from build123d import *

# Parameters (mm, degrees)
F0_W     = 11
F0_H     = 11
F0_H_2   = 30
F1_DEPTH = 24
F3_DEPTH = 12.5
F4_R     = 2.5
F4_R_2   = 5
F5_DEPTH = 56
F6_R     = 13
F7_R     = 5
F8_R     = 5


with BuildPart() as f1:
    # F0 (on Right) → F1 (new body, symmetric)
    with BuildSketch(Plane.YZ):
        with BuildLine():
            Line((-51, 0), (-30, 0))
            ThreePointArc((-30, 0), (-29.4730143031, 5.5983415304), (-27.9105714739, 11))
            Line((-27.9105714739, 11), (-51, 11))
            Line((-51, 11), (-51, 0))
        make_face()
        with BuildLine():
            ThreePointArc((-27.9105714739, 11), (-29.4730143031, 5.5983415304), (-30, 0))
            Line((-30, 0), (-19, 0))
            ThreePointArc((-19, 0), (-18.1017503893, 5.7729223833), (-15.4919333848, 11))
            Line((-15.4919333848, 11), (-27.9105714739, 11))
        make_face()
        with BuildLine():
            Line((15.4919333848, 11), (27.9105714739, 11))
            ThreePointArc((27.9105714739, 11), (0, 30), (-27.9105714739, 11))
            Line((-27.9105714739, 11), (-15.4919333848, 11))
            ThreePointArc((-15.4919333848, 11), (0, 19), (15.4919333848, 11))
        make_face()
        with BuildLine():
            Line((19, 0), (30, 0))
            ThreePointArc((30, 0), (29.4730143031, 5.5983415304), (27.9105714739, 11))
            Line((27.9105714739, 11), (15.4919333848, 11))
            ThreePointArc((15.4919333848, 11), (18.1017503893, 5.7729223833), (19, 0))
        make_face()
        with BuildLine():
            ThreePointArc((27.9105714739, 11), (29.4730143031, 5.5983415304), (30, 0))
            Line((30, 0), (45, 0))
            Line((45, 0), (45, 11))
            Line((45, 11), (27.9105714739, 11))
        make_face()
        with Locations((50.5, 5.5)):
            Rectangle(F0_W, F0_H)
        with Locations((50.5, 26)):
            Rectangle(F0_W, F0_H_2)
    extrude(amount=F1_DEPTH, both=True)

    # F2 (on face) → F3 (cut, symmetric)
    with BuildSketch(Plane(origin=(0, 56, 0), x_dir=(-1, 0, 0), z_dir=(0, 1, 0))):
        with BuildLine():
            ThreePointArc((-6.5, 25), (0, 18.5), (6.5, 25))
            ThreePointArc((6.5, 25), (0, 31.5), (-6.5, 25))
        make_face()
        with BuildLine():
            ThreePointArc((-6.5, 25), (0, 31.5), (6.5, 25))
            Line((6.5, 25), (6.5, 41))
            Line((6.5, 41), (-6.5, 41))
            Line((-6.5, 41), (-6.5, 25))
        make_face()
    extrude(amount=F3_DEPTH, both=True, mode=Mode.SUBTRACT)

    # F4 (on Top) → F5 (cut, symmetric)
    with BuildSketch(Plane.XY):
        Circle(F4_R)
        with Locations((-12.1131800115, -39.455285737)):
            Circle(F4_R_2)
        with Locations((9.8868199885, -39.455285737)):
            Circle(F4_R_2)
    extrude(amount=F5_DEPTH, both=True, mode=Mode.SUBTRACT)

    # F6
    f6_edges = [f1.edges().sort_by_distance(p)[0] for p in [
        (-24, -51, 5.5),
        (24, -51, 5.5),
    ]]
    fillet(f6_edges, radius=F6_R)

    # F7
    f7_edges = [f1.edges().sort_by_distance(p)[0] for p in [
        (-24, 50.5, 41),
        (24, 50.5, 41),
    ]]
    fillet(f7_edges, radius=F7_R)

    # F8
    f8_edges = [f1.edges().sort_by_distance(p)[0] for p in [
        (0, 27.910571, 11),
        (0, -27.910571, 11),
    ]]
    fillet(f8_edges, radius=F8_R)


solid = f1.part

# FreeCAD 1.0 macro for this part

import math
import FreeCAD as App
import Part
import Sketcher

V = App.Vector
Q = App.Units.Quantity


def edges_at(feature, points):
    """Names of the edges that pass closest to the given points."""
    edges = feature.Shape.Edges
    near = lambda p: min(range(len(edges)), key=lambda i: edges[i].distToShape(Part.Vertex(*p))[0])
    return sorted({f"Edge{near(p) + 1}" for p in points})

doc = App.newDocument("Part")
body = doc.addObject("PartDesign::Body", "Body")

# Sketch on YZ plane
sketch1 = body.newObject("Sketcher::SketchObject", "Sketch")
sketch1.AttachmentSupport = (doc.getObject("YZ_Plane"), [""])
sketch1.MapMode = "FlatFace"
sketch1.addGeometry(Part.LineSegment(V(-51, 0, 0), V(-19, 0, 0)), False)
sketch1.addGeometry(Part.ArcOfCircle(Part.Circle(V(0, 0, 0), V(0, 0, 1), 19), math.radians(145), math.radians(180)), False)
sketch1.addGeometry(Part.ArcOfCircle(Part.Circle(V(0, 0, 0), V(0, 0, 1), 19), math.radians(35), math.radians(145)), False)
sketch1.addGeometry(Part.ArcOfCircle(Part.Circle(V(0, 0, 0), V(0, 0, 1), 19), math.radians(0), math.radians(35)), False)
sketch1.addGeometry(Part.LineSegment(V(19, 0, 0), V(56, 0, 0)), False)
sketch1.addGeometry(Part.LineSegment(V(56, 0, 0), V(56, 41, 0)), False)
sketch1.addGeometry(Part.LineSegment(V(56, 41, 0), V(45, 41, 0)), False)
sketch1.addGeometry(Part.LineSegment(V(45, 41, 0), V(45, 11, 0)), False)
sketch1.addGeometry(Part.LineSegment(V(45, 11, 0), V(28, 11, 0)), False)
sketch1.addGeometry(Part.ArcOfCircle(Part.Circle(V(0, 0, 0), V(0, 0, 1), 30), math.radians(22), math.radians(158)), False)
sketch1.addGeometry(Part.LineSegment(V(-28, 11, 0), V(-51, 11, 0)), False)
sketch1.addGeometry(Part.LineSegment(V(-51, 11, 0), V(-51, 0, 0)), False)
sketch1.addConstraint(Sketcher.Constraint("Coincident", 0, 2, 1, 2))
sketch1.addConstraint(Sketcher.Constraint("Tangent", 1, 1, 2, 2))
sketch1.addConstraint(Sketcher.Constraint("Tangent", 2, 1, 3, 2))
sketch1.addConstraint(Sketcher.Constraint("Coincident", 3, 1, 4, 1))
sketch1.addConstraint(Sketcher.Constraint("Coincident", 4, 2, 5, 1))
sketch1.addConstraint(Sketcher.Constraint("Coincident", 5, 2, 6, 1))
sketch1.addConstraint(Sketcher.Constraint("Coincident", 6, 2, 7, 1))
sketch1.addConstraint(Sketcher.Constraint("Coincident", 7, 2, 8, 1))
sketch1.addConstraint(Sketcher.Constraint("Coincident", 8, 2, 9, 1))
sketch1.addConstraint(Sketcher.Constraint("Coincident", 9, 2, 10, 1))
sketch1.addConstraint(Sketcher.Constraint("Coincident", 10, 2, 11, 1))
sketch1.addConstraint(Sketcher.Constraint("Coincident", 11, 2, 0, 1))
sketch1.addConstraint(Sketcher.Constraint("Horizontal", 0))
sketch1.addConstraint(Sketcher.Constraint("Horizontal", 4))
sketch1.addConstraint(Sketcher.Constraint("Vertical", 5))
sketch1.addConstraint(Sketcher.Constraint("Horizontal", 6))
sketch1.addConstraint(Sketcher.Constraint("Vertical", 7))
sketch1.addConstraint(Sketcher.Constraint("Horizontal", 8))
sketch1.addConstraint(Sketcher.Constraint("Horizontal", 10))
sketch1.addConstraint(Sketcher.Constraint("Vertical", 11))
sketch1.addConstraint(Sketcher.Constraint("Coincident", 1, 3, -1, 1))
sketch1.addConstraint(Sketcher.Constraint("Coincident", 3, 3, -1, 1))
sketch1.addConstraint(Sketcher.Constraint("Coincident", 9, 3, -1, 1))
sketch1.addConstraint(Sketcher.Constraint("PointOnObject", 0, 2, -1))
sketch1.addConstraint(Sketcher.Constraint("PointOnObject", 3, 1, -1))
sketch1.addConstraint(Sketcher.Constraint("Horizontal", 1, 1, 2, 1))
sketch1.addConstraint(Sketcher.Constraint("Horizontal", 2, 1, 7, 2))
sketch1.addConstraint(Sketcher.Constraint("Horizontal", 8, 2, 9, 2))
sketch1.addConstraint(Sketcher.Constraint("Equal", 6, 11))
sketch1.addConstraint(Sketcher.Constraint("Radius", 1, Q("19 mm")))
sketch1.addConstraint(Sketcher.Constraint("Radius", 9, Q("30 mm")))
sketch1.addConstraint(Sketcher.Constraint("DistanceX", 0, 1, 0, 2, Q("32 mm")))
sketch1.addConstraint(Sketcher.Constraint("DistanceX", 4, 1, 4, 2, Q("37 mm")))
sketch1.addConstraint(Sketcher.Constraint("DistanceX", 6, 2, 6, 1, Q("11 mm")))
sketch1.addConstraint(Sketcher.Constraint("DistanceY", 5, 1, 5, 2, Q("41 mm")))
pad1 = body.newObject("PartDesign::Pad", "Pad")
pad1.Profile = sketch1
pad1.Length = 48
pad1.Midplane = True

# Sketch on XZ plane
sketch2 = body.newObject("Sketcher::SketchObject", "Sketch001")
sketch2.AttachmentSupport = (doc.getObject("XZ_Plane"), [""])
sketch2.MapMode = "FlatFace"
sketch2.AttachmentOffset = App.Placement(V(0, 0, -56), App.Rotation())
sketch2.addGeometry(Part.ArcOfCircle(Part.Circle(V(0, 25, 0), V(0, 0, 1), 6), math.radians(180), math.radians(360)), False)
sketch2.addGeometry(Part.LineSegment(V(-6, 25, 0), V(-6, 41, 0)), False)
sketch2.addGeometry(Part.LineSegment(V(-6, 41, 0), V(6, 41, 0)), False)
sketch2.addGeometry(Part.LineSegment(V(6, 41, 0), V(6, 25, 0)), False)
sketch2.addConstraint(Sketcher.Constraint("Tangent", 0, 1, 1, 1))
sketch2.addConstraint(Sketcher.Constraint("Coincident", 1, 2, 2, 1))
sketch2.addConstraint(Sketcher.Constraint("Coincident", 2, 2, 3, 1))
sketch2.addConstraint(Sketcher.Constraint("Tangent", 3, 2, 0, 2))
sketch2.addConstraint(Sketcher.Constraint("Vertical", 1))
sketch2.addConstraint(Sketcher.Constraint("Horizontal", 2))
sketch2.addConstraint(Sketcher.Constraint("Vertical", 3))
sketch2.addConstraint(Sketcher.Constraint("PointOnObject", 0, 3, -2))
sketch2.addConstraint(Sketcher.Constraint("Radius", 0, Q("6.5 mm")))
sketch2.addConstraint(Sketcher.Constraint("DistanceY", 1, 1, 1, 2, Q("16 mm")))
sketch2.addConstraint(Sketcher.Constraint("DistanceY", -1, 1, 0, 3, Q("25 mm")))
pocket1 = body.newObject("PartDesign::Pocket", "Pocket")
pocket1.Profile = sketch2
pocket1.Length = 25
pocket1.Midplane = True

# Sketch on XY plane
sketch3 = body.newObject("Sketcher::SketchObject", "Sketch002")
sketch3.AttachmentSupport = (doc.getObject("XY_Plane"), [""])
sketch3.MapMode = "FlatFace"
sketch3.addGeometry(Part.Circle(V(0, 0, 0), V(0, 0, 1), 2.5), False)
sketch3.addGeometry(Part.Circle(V(-12.1, -39.5, 0), V(0, 0, 1), 5), False)
sketch3.addGeometry(Part.Circle(V(9.9, -39.5, 0), V(0, 0, 1), 5), False)
sketch3.addConstraint(Sketcher.Constraint("Coincident", 0, 3, -1, 1))
sketch3.addConstraint(Sketcher.Constraint("Equal", 1, 2))
sketch3.addConstraint(Sketcher.Constraint("Horizontal", 1, 3, 2, 3))
sketch3.addConstraint(Sketcher.Constraint("Diameter", 0, Q("5 mm")))
sketch3.addConstraint(Sketcher.Constraint("Diameter", 1, Q("10 mm")))
sketch3.addConstraint(Sketcher.Constraint("DistanceX", 1, 3, 2, 3, Q("22 mm")))
sketch3.addConstraint(Sketcher.Constraint("DistanceX", 1, 3, -1, 1, Q("12.11318 mm")))
sketch3.addConstraint(Sketcher.Constraint("DistanceY", 1, 3, -1, 1, Q("39.455286 mm")))
pocket2 = body.newObject("PartDesign::Pocket", "Pocket001")
pocket2.Profile = sketch3
pocket2.Length = 112
pocket2.Midplane = True
doc.recompute()

fillet = body.newObject("PartDesign::Fillet", "Fillet")
fillet.Base = (pocket2, edges_at(pocket2, [(-24, -51, 5.5), (24, -51, 5.5)]))
fillet.Radius = 13
doc.recompute()

fillet2 = body.newObject("PartDesign::Fillet", "Fillet001")
fillet2.Base = (fillet, edges_at(fillet, [(-24, 50.5, 41), (24, 50.5, 41)]))
fillet2.Radius = 5
doc.recompute()

fillet3 = body.newObject("PartDesign::Fillet", "Fillet002")
fillet3.Base = (fillet2, edges_at(fillet2, [(0, 27.911, 11), (0, -27.911, 11)]))
fillet3.Radius = 5

doc.recompute()
